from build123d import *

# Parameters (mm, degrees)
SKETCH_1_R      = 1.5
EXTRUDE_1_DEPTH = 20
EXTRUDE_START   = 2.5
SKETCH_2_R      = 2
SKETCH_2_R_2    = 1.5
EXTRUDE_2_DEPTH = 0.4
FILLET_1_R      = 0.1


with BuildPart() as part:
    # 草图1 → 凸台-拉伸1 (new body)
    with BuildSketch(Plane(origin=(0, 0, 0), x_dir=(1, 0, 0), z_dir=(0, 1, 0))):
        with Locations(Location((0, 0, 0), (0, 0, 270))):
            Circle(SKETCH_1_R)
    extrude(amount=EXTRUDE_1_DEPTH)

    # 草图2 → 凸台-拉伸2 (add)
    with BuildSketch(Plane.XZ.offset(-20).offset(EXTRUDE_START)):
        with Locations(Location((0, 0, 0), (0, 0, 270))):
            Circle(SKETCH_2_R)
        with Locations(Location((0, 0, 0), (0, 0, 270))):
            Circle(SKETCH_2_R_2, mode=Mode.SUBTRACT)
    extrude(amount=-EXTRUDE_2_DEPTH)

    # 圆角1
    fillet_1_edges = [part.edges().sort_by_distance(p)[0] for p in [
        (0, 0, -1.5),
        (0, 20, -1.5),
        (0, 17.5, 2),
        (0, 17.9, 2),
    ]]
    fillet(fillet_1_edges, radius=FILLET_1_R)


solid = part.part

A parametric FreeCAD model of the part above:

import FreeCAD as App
import Part
import Sketcher
from FreeCAD import Vector
Q = App.Units.Quantity


def edges_at(feature, points):
    """Names of the edges that pass closest to the given points."""
    edges = feature.Shape.Edges
    near = lambda p: min(range(len(edges)), key=lambda i: edges[i].distToShape(Part.Vertex(*p))[0])
    return sorted({f"Edge{near(p) + 1}" for p in points})

doc = App.newDocument("Part")
params = doc.addObject("Spreadsheet::Sheet", "Params")
for row, (alias, value) in enumerate([
    ("sketch1_diameter", "3 mm"),
    ("pad1_length", "20 mm"),
    ("sketch2_diameter", "4 mm"),
    ("sketch2_diameter2", "3 mm"),
    ("pad2_length", "0.4 mm"),
    ("fillet_radius", "0.1 mm"),
], start=1):
    params.set(f"A{row}", alias)
    params.set(f"B{row}", "=" + value)
    params.setAlias(f"B{row}", alias)

body = doc.addObject("PartDesign::Body", "Body")

sketch1 = doc.addObject("Sketcher::SketchObject", "Sketch")
body.addObject(sketch1)
sketch1.AttachmentSupport = (doc.XZ_Plane, [""])
sketch1.MapMode = "FlatFace"
sketch1.addGeometry(Part.Circle(Vector(0, 0, 0), Vector(0, 0, 1), 1.5), False)
sketch1.addConstraint([
    Sketcher.Constraint("Coincident", 0, 3, -1, 1),
    Sketcher.Constraint("Diameter", 0, Q("3 mm")),
])
sketch1.setExpression("Constraints[1]", "Params.sketch1_diameter")
pad1 = doc.addObject("PartDesign::Pad", "Pad")
body.addObject(pad1)
pad1.Profile = sketch1
pad1.setExpression("Length", "Params.pad1_length")
pad1.Reversed = True

sketch2 = doc.addObject("Sketcher::SketchObject", "Sketch001")
body.addObject(sketch2)
sketch2.AttachmentSupport = (doc.XZ_Plane, [""])
sketch2.MapMode = "FlatFace"
sketch2.AttachmentOffset = App.Placement(Vector(0, 0, -17.5), App.Rotation())
sketch2.addGeometry([
    Part.Circle(Vector(0, 0, 0), Vector(0, 0, 1), 2),
    Part.Circle(Vector(0, 0, 0), Vector(0, 0, 1), 1.5),
], False)
sketch2.addConstraint([
    Sketcher.Constraint("Coincident", 0, 3, -1, 1),
    Sketcher.Constraint("Coincident", 1, 3, -1, 1),
    Sketcher.Constraint("Diameter", 0, Q("4 mm")),
    Sketcher.Constraint("Diameter", 1, Q("3 mm")),
])
sketch2.setExpression("Constraints[2]", "Params.sketch2_diameter")
sketch2.setExpression("Constraints[3]", "Params.sketch2_diameter2")
pad2 = doc.addObject("PartDesign::Pad", "Pad001")
body.addObject(pad2)
pad2.Profile = sketch2
pad2.setExpression("Length", "Params.pad2_length")
pad2.Reversed = True
doc.recompute()

fillet = doc.addObject("PartDesign::Fillet", "Fillet")
body.addObject(fillet)
fillet.Base = (pad2, edges_at(pad2, [
    (0, 0, -1.5),
    (0, 20, -1.5),
    (0, 17.5, 2),
    (0, 17.9, 2),
]))
fillet.setExpression("Radius", "Params.fillet_radius")

doc.recompute()
